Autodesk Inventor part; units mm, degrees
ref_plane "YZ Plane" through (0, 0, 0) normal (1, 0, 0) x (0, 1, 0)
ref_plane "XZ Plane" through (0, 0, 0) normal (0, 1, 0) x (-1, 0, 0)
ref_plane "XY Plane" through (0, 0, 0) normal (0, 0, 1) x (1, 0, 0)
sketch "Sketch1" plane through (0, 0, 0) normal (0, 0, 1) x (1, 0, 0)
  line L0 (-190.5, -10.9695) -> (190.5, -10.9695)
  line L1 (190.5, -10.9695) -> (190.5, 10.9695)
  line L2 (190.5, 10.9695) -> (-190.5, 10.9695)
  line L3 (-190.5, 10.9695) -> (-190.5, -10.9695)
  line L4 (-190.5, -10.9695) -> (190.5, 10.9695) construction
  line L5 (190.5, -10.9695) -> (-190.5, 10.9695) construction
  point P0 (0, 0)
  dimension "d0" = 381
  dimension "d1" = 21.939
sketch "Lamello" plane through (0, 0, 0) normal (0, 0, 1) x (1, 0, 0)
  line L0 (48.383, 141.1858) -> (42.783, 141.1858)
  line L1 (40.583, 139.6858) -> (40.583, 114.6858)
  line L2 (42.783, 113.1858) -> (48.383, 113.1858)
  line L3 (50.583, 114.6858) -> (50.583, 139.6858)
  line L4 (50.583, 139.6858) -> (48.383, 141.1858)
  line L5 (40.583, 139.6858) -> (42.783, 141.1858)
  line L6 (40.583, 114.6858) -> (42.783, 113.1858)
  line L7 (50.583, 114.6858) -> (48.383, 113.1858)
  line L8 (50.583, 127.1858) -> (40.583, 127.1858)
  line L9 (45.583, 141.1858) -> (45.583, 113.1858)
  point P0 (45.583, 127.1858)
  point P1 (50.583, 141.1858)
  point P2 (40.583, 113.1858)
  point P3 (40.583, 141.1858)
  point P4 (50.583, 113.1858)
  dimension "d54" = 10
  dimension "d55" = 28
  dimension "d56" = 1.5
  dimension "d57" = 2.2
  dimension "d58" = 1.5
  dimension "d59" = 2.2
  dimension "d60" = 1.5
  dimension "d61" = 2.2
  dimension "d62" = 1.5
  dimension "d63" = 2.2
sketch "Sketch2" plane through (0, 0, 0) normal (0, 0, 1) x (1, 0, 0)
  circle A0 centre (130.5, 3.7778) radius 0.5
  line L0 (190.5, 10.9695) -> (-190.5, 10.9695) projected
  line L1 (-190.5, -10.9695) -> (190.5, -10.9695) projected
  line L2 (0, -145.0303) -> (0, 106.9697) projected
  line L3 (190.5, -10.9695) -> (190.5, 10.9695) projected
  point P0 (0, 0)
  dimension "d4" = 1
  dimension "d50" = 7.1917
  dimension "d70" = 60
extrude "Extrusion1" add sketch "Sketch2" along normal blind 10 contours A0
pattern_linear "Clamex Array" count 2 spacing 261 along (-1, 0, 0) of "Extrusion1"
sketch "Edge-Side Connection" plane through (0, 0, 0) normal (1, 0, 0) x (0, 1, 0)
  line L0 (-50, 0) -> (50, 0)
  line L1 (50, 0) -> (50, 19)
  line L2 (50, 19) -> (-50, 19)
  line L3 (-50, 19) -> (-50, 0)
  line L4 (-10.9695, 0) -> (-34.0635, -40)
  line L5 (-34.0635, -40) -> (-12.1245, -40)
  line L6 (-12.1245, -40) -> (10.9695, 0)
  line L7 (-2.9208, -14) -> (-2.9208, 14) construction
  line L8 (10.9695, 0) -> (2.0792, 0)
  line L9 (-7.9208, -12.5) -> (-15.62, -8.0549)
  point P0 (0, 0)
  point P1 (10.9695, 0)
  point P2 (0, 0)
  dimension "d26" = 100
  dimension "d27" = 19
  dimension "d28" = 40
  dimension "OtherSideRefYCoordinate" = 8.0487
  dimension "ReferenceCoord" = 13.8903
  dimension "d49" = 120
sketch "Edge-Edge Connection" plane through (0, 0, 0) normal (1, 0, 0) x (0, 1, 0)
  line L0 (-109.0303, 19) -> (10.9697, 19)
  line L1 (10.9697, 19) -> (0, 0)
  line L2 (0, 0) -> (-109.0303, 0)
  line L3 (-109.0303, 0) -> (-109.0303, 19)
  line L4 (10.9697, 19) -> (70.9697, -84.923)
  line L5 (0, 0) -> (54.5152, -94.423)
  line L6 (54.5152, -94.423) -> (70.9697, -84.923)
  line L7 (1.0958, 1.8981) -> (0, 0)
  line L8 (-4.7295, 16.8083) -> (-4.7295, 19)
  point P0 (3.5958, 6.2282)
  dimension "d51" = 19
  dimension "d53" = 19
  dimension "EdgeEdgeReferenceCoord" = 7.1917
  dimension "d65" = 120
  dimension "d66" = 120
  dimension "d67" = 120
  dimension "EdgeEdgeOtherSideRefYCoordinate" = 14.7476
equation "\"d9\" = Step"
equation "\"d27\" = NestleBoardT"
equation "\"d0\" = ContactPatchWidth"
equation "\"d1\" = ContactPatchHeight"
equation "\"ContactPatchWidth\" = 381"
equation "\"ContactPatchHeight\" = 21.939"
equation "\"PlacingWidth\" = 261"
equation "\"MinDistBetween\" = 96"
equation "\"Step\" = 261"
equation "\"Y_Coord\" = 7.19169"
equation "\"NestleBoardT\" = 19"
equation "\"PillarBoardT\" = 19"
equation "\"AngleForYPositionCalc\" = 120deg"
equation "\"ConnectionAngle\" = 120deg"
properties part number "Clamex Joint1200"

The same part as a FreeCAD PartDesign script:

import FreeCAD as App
import Part
import Sketcher

doc = App.newDocument("Part")
body = doc.addObject("PartDesign::Body", "Body")
body.AllowCompound = True

sketch1 = body.newObject("Sketcher::SketchObject", "Sketch")
sketch1.AttachmentSupport = (doc.getObject("XY_Plane"), [""])
sketch1.MapMode = "FlatFace"
sketch1.addGeometry(Part.Circle(App.Vector(130.5, 3.8, 0), App.Vector(0, 0, 1), 0.5), False)
sketch1.addConstraint([
    Sketcher.Constraint("Diameter", 0, 1.0),
    Sketcher.Constraint("DistanceX", -1, 1, 0, 3, 130.5),
    Sketcher.Constraint("DistanceY", -1, 1, 0, 3, 3.7778),
])
pad1 = body.newObject("PartDesign::Pad", "Pad")
pad1.Profile = sketch1
pad1.Length = 10
doc.recompute()

linearpattern = body.newObject("PartDesign::LinearPattern", "LinearPattern")
linearpattern.Originals = [pad1]
linearpattern.Direction = (doc.getObject("X_Axis"), [""])
linearpattern.Mode = "offset"
linearpattern.Offset = 261
linearpattern.Occurrences = 2
linearpattern.Reversed = True
body.Tip = linearpattern

doc.recompute()
